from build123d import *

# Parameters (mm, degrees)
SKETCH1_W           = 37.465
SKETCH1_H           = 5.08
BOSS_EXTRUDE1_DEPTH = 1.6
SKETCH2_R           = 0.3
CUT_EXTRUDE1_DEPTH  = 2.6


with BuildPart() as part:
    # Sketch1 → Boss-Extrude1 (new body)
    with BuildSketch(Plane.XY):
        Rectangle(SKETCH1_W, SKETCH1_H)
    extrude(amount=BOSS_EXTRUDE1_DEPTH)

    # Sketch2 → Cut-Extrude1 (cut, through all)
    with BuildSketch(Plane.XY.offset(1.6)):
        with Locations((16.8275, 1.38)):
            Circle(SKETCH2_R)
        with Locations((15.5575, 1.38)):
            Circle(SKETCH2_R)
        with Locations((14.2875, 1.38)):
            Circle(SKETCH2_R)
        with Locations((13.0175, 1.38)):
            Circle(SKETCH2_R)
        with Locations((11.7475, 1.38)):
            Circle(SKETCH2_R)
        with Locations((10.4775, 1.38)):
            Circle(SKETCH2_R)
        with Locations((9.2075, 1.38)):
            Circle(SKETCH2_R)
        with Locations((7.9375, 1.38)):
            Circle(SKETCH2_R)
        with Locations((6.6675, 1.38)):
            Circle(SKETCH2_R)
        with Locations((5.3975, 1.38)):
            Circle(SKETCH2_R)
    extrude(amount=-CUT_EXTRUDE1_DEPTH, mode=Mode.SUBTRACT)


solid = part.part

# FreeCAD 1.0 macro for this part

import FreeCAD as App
import Part
import Sketcher
from FreeCAD import Vector


def add_polygon(sketch, points):
    """Adds a closed chain of lines whose ends are joined by coincident constraints."""
    first, n = sketch.GeometryCount, len(points)
    for a, b in zip(points, points[1:] + points[:1]):
        sketch.addGeometry(Part.LineSegment(App.Vector(*a, 0), App.Vector(*b, 0)), False)
    for i in range(n):
        sketch.addConstraint(Sketcher.Constraint("Coincident", first + i, 2, first + (i + 1) % n, 1))

doc = App.newDocument("Part")
body = doc.addObject("PartDesign::Body", "Body")

# Sketch on XY plane
sketch1 = body.newObject("Sketcher::SketchObject", "Sketch")
sketch1.AttachmentSupport = (doc.getObject("XY_Plane"), [""])
sketch1.MapMode = "FlatFace"
add_polygon(sketch1, [(-19, 3), (-19, -3), (19, -3), (19, 3)])  # lines 0-3
sketch1.addConstraint(Sketcher.Constraint("Vertical", 0))
sketch1.addConstraint(Sketcher.Constraint("Horizontal", 1))
sketch1.addConstraint(Sketcher.Constraint("Vertical", 2))
sketch1.addConstraint(Sketcher.Constraint("Horizontal", 3))
sketch1.addConstraint(Sketcher.Constraint("Symmetric", 0, 2, 2, 2, -1, 1))
sketch1.addConstraint(Sketcher.Constraint("DistanceY", 0, 2, 0, 1, 5.08))
sketch1.addConstraint(Sketcher.Constraint("DistanceX", 1, 1, 1, 2, 37.465))
pad1 = body.newObject("PartDesign::Pad", "Pad")
pad1.Profile = sketch1
pad1.Length = 1.6

# Sketch on XY plane
sketch2 = body.newObject("Sketcher::SketchObject", "Sketch001")
sketch2.AttachmentSupport = (doc.getObject("XY_Plane"), [""])
sketch2.MapMode = "FlatFace"
sketch2.AttachmentOffset = App.Placement(Vector(0, 0, 1.6), App.Rotation())
sketch2.addGeometry(Part.Circle(Vector(16.83, 1.38, 0), Vector(0, 0, 1), 0.3), False)
sketch2.addGeometry(Part.Circle(Vector(15.56, 1.38, 0), Vector(0, 0, 1), 0.3), False)
sketch2.addGeometry(Part.Circle(Vector(14.29, 1.38, 0), Vector(0, 0, 1), 0.3), False)
sketch2.addGeometry(Part.Circle(Vector(13.02, 1.38, 0), Vector(0, 0, 1), 0.3), False)
sketch2.addGeometry(Part.Circle(Vector(11.75, 1.38, 0), Vector(0, 0, 1), 0.3), False)
sketch2.addGeometry(Part.Circle(Vector(10.48, 1.38, 0), Vector(0, 0, 1), 0.3), False)
sketch2.addGeometry(Part.Circle(Vector(9.21, 1.38, 0), Vector(0, 0, 1), 0.3), False)
sketch2.addGeometry(Part.Circle(Vector(7.94, 1.38, 0), Vector(0, 0, 1), 0.3), False)
sketch2.addGeometry(Part.Circle(Vector(6.67, 1.38, 0), Vector(0, 0, 1), 0.3), False)
sketch2.addGeometry(Part.Circle(Vector(5.4, 1.38, 0), Vector(0, 0, 1), 0.3), False)
sketch2.addConstraint(Sketcher.Constraint("Equal", 0, 1))
sketch2.addConstraint(Sketcher.Constraint("Equal", 1, 2))
sketch2.addConstraint(Sketcher.Constraint("Equal", 2, 3))
sketch2.addConstraint(Sketcher.Constraint("Equal", 3, 4))
sketch2.addConstraint(Sketcher.Constraint("Equal", 4, 5))
sketch2.addConstraint(Sketcher.Constraint("Equal", 5, 6))
sketch2.addConstraint(Sketcher.Constraint("Equal", 6, 7))
sketch2.addConstraint(Sketcher.Constraint("Equal", 7, 8))
sketch2.addConstraint(Sketcher.Constraint("Equal", 8, 9))
sketch2.addConstraint(Sketcher.Constraint("Horizontal", 0, 3, 1, 3))
sketch2.addConstraint(Sketcher.Constraint("Horizontal", 1, 3, 2, 3))
sketch2.addConstraint(Sketcher.Constraint("Horizontal", 2, 3, 3, 3))
sketch2.addConstraint(Sketcher.Constraint("Horizontal", 3, 3, 4, 3))
sketch2.addConstraint(Sketcher.Constraint("Horizontal", 4, 3, 5, 3))
sketch2.addConstraint(Sketcher.Constraint("Horizontal", 5, 3, 6, 3))
sketch2.addConstraint(Sketcher.Constraint("Horizontal", 6, 3, 7, 3))
sketch2.addConstraint(Sketcher.Constraint("Horizontal", 7, 3, 8, 3))
sketch2.addConstraint(Sketcher.Constraint("Horizontal", 8, 3, 9, 3))
sketch2.addConstraint(Sketcher.Constraint("Diameter", 0, 0.6))
sketch2.addConstraint(Sketcher.Constraint("DistanceY", -1, 1, 0, 3, 1.38))
sketch2.addConstraint(Sketcher.Constraint("DistanceX", 1, 3, 0, 3, 1.27))
sketch2.addConstraint(Sketcher.Constraint("DistanceX", 2, 3, 1, 3, 1.27))
sketch2.addConstraint(Sketcher.Constraint("DistanceX", 3, 3, 2, 3, 1.27))
sketch2.addConstraint(Sketcher.Constraint("DistanceX", 4, 3, 3, 3, 1.27))
sketch2.addConstraint(Sketcher.Constraint("DistanceX", 5, 3, 4, 3, 1.27))
sketch2.addConstraint(Sketcher.Constraint("DistanceX", 6, 3, 5, 3, 1.27))
sketch2.addConstraint(Sketcher.Constraint("DistanceX", 7, 3, 6, 3, 1.27))
sketch2.addConstraint(Sketcher.Constraint("DistanceX", 8, 3, 7, 3, 1.27))
sketch2.addConstraint(Sketcher.Constraint("DistanceX", 9, 3, 8, 3, 1.27))
sketch2.addConstraint(Sketcher.Constraint("DistanceX", -1, 1, 0, 3, 16.8275))
pocket1 = body.newObject("PartDesign::Pocket", "Pocket")
pocket1.Profile = sketch2
pocket1.Type = "ThroughAll"

doc.recompute()
